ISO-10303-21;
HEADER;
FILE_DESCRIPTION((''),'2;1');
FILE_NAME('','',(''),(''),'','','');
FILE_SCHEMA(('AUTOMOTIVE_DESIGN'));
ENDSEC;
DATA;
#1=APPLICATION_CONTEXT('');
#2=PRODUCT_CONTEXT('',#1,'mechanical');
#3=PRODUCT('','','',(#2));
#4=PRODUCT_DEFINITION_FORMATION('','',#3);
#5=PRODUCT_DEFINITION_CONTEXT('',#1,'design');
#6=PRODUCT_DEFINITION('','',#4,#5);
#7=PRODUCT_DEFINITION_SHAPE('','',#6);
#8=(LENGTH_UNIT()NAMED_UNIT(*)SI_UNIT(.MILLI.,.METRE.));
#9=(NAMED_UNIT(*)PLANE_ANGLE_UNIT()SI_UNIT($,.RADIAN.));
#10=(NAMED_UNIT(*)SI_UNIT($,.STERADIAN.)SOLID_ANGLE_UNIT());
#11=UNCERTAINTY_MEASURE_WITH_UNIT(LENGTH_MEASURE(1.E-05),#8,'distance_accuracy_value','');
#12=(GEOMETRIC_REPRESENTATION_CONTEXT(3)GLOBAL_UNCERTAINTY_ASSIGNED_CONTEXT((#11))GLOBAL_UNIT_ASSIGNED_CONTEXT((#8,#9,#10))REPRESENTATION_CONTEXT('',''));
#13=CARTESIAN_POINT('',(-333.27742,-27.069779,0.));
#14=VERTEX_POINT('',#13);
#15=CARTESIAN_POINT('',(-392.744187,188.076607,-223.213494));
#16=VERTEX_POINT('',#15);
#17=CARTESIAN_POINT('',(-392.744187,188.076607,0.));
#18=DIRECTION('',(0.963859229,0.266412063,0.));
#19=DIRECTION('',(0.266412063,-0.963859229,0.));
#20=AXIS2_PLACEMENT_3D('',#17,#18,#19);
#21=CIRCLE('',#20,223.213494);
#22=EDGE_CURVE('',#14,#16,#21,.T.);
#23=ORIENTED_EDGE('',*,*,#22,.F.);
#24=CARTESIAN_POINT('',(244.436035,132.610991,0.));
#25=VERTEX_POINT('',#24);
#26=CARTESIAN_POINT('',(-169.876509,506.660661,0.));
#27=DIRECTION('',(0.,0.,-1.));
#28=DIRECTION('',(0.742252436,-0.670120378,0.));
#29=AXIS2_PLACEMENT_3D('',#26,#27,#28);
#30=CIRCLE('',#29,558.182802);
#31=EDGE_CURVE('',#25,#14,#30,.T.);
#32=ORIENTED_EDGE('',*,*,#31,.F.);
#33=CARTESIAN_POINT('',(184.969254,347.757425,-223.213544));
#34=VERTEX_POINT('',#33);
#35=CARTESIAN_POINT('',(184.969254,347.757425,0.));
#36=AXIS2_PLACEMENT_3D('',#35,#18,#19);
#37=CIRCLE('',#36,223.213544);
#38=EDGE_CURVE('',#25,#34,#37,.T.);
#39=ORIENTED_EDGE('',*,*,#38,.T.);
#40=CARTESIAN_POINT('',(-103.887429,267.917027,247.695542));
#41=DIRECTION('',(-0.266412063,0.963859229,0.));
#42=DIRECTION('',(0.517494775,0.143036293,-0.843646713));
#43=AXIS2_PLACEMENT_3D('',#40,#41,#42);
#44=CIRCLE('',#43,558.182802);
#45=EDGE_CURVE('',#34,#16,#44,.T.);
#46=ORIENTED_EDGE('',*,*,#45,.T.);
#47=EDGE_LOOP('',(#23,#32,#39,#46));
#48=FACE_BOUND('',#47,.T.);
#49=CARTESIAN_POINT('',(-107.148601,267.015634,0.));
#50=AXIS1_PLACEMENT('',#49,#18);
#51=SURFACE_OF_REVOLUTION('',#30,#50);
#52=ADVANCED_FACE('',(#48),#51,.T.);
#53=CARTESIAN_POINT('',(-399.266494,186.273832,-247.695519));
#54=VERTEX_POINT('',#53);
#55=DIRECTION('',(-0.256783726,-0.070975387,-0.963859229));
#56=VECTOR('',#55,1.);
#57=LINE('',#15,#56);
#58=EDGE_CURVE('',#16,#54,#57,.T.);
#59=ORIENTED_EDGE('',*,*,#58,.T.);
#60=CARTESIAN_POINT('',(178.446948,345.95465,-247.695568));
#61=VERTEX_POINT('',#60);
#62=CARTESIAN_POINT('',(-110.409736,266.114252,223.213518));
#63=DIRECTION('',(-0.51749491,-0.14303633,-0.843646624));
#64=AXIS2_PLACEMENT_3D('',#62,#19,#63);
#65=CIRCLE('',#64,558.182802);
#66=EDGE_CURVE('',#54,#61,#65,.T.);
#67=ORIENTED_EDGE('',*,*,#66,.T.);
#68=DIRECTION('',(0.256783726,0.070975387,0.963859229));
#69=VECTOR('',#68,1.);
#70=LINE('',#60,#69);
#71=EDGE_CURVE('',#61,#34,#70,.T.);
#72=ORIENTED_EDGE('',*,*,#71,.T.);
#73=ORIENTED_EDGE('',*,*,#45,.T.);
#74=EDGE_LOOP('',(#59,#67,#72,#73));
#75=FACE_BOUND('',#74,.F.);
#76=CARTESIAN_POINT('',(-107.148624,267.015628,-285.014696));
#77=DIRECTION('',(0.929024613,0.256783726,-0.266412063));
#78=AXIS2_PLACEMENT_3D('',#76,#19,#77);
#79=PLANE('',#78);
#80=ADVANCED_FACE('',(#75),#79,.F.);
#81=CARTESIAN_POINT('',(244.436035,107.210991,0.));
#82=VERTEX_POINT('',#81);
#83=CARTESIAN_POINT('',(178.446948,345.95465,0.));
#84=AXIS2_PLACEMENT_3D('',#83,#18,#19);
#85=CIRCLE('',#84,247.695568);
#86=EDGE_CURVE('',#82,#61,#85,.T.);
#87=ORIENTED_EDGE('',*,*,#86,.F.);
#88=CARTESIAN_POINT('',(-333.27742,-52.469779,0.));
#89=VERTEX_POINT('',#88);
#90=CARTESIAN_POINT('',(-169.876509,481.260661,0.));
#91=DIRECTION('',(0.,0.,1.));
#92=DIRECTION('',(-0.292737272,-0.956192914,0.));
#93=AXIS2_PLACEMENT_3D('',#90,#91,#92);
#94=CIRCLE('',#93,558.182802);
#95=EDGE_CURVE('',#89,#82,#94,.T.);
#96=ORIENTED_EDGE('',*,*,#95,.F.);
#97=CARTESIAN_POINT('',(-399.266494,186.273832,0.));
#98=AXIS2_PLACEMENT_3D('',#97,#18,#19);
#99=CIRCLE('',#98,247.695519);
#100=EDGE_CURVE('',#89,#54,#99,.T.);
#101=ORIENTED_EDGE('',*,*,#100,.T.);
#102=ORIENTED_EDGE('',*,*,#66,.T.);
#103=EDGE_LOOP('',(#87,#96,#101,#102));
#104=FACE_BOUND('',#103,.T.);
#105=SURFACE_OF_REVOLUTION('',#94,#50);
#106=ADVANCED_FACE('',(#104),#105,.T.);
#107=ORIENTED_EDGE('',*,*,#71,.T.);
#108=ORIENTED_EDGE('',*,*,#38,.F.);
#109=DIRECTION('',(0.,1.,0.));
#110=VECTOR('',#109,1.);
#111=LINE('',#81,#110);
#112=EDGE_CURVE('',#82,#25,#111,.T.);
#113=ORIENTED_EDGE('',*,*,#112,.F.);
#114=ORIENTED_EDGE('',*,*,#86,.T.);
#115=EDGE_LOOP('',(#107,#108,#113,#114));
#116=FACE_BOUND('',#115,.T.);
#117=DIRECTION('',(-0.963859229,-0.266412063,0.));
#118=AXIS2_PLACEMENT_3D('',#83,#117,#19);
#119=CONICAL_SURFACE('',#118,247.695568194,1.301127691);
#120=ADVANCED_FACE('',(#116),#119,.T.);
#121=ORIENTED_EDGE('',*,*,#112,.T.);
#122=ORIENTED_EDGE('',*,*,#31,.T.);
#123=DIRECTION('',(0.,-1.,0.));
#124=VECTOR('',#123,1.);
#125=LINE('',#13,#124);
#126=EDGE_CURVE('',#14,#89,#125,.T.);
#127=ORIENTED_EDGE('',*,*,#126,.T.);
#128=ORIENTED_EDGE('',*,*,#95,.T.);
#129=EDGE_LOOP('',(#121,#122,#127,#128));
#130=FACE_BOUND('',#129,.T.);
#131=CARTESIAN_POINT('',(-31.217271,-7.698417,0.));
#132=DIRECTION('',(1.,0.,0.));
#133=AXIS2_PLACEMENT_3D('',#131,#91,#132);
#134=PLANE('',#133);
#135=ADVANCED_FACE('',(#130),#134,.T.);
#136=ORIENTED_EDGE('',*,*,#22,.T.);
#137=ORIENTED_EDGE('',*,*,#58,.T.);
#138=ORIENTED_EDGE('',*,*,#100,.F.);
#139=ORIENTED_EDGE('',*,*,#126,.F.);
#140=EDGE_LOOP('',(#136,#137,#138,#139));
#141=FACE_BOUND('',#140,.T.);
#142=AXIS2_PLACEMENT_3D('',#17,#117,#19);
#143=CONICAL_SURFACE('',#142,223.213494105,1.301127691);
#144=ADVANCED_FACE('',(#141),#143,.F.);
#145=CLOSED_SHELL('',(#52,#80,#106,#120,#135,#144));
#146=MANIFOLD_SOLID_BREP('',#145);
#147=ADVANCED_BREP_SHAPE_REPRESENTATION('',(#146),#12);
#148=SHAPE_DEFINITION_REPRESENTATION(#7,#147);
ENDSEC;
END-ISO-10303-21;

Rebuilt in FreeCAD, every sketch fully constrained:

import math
import FreeCAD as App
import Part
import Sketcher

V = App.Vector
Q = App.Units.Quantity

doc = App.newDocument("Part")
body = doc.addObject("PartDesign::Body", "Body")

# Sketch on XY plane
sketch1 = body.newObject("Sketcher::SketchObject", "Sketch")
sketch1.AttachmentSupport = (doc.getObject("XY_Plane"), [""])
sketch1.MapMode = "FlatFace"
sketch1.addGeometry([
    Part.LineSegment(V(-333.27742, -27.069779, 0), V(-333.27742, -52.469779, 0)),
    Part.ArcOfCircle(Part.Circle(V(-169.876509, 481.260661, 0), V(0, 0, 1), 558.182802), math.radians(-107.021904), math.radians(-42.076356)),
    Part.LineSegment(V(244.436035, 107.210991, 0), V(244.436035, 132.610991, 0)),
    Part.ArcOfCircle(Part.Circle(V(-169.876509, 506.660661, 0), V(0, 0, 1), 558.182802), math.radians(-107.021904), math.radians(-42.076356)),
], False)
sketch1.addGeometry(Part.LineSegment(V(-399.266494, 186.273832, 0), V(184.969255, 347.757425, 0)), True)  # axis
sketch1.addConstraint([
    Sketcher.Constraint("Coincident", 0, 2, 1, 1),
    Sketcher.Constraint("Coincident", 1, 2, 2, 1),
    Sketcher.Constraint("Coincident", 2, 2, 3, 2),
    Sketcher.Constraint("Coincident", 3, 1, 0, 1),
    Sketcher.Constraint("Vertical", 0),
    Sketcher.Constraint("Vertical", 2),
    Sketcher.Constraint("Equal", 1, 3),
    Sketcher.Constraint("Vertical", 1, 3, 3, 3),
    Sketcher.Constraint("DistanceY", 0, 2, 0, 1, Q("1 in")),
    Sketcher.Constraint("Radius", 1, 558.182802),
    Sketcher.Constraint("DistanceX", 1, 3, -1, 1, 169.876509),
    Sketcher.Constraint("DistanceY", -1, 1, 1, 3, 481.260661),
    Sketcher.Constraint("DistanceX", 0, 2, -1, 1, 333.27742),
    Sketcher.Constraint("DistanceY", -1, 1, 2, 2, 132.610991),
    Sketcher.Constraint("DistanceY", 3, 1, 4, 1, 213.343611),
    Sketcher.Constraint("DistanceX", 4, 1, 2, 2, 643.702529),
    Sketcher.Constraint("DistanceX", 4, 2, 2, 2, 59.46678),
    Sketcher.Constraint("Distance", 4, 606.142195),
])
revolution = body.newObject("PartDesign::Revolution", "Revolution")
revolution.Profile = sketch1
revolution.ReferenceAxis = (sketch1, ["Axis0"])
revolution.Angle = 90

doc.recompute()
